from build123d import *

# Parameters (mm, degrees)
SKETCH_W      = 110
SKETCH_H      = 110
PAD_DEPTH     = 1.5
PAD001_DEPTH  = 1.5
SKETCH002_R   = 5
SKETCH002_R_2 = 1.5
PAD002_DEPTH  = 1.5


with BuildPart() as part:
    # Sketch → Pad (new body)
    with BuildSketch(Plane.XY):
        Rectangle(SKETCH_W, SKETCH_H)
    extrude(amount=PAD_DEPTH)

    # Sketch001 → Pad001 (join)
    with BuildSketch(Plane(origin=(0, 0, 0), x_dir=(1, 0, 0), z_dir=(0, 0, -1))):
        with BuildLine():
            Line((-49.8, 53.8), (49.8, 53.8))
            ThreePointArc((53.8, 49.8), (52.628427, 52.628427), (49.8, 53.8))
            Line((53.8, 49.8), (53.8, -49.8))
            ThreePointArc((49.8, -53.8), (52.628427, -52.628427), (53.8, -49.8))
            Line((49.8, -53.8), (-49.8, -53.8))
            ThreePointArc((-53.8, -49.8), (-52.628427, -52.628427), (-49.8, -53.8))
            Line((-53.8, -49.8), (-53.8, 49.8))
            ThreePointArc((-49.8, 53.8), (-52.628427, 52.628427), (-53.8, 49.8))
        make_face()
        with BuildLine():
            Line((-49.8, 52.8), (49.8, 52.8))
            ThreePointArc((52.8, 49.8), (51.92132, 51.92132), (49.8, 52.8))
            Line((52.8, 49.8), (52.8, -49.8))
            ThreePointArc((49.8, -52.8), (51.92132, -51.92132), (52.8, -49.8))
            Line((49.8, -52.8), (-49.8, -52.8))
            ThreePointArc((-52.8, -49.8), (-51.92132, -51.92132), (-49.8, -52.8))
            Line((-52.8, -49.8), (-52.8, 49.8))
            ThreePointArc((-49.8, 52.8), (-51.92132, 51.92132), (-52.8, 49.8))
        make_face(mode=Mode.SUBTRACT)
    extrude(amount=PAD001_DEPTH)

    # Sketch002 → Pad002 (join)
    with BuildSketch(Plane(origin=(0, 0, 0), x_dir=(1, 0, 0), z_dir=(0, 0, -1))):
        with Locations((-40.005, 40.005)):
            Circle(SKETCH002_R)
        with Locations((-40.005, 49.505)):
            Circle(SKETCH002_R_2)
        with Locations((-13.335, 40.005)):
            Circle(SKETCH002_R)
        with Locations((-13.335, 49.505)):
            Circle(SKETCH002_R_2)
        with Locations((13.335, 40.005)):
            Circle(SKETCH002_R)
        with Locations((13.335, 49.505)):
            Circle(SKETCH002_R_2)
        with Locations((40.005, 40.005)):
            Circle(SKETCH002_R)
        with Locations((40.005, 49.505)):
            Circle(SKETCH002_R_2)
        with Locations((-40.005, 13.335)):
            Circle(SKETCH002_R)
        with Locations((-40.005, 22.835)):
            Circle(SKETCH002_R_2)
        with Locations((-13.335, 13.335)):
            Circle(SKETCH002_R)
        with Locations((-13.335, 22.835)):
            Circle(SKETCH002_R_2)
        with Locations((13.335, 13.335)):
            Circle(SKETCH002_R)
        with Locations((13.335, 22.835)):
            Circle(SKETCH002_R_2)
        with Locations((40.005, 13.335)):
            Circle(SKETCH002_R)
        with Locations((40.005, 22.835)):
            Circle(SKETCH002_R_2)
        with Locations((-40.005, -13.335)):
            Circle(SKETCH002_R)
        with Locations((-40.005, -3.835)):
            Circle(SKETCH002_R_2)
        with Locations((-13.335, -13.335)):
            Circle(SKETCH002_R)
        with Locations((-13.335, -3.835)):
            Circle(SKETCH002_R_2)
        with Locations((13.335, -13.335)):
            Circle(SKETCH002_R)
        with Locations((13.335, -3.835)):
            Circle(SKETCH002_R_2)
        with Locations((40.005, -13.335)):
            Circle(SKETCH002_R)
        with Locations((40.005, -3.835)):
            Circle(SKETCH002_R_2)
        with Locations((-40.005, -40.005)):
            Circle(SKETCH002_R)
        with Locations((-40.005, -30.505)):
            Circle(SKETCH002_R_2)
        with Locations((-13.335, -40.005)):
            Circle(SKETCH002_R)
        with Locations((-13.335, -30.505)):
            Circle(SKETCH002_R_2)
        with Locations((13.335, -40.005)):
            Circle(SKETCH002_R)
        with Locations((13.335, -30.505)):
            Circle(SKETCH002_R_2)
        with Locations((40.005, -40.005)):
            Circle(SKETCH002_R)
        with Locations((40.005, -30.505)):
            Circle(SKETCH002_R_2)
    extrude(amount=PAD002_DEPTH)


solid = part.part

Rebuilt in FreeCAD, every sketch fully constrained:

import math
import FreeCAD as App
import Part
import Sketcher

V = App.Vector


def add_polygon(sketch, points):
    """Adds a closed chain of lines whose ends are joined by coincident constraints."""
    first, n = sketch.GeometryCount, len(points)
    for a, b in zip(points, points[1:] + points[:1]):
        sketch.addGeometry(Part.LineSegment(App.Vector(*a, 0), App.Vector(*b, 0)), False)
    for i in range(n):
        sketch.addConstraint(Sketcher.Constraint("Coincident", first + i, 2, first + (i + 1) % n, 1))

doc = App.newDocument("Part")
body = doc.addObject("PartDesign::Body", "Body")

# Sketch on XY plane
sketch1 = body.newObject("Sketcher::SketchObject", "Sketch")
sketch1.AttachmentSupport = (doc.getObject("XY_Plane"), [""])
sketch1.MapMode = "FlatFace"
add_polygon(sketch1, [(-55, 55), (-55, -55), (55, -55), (55, 55)])  # lines 0-3
sketch1.addConstraint([
    Sketcher.Constraint("Vertical", 0),
    Sketcher.Constraint("Horizontal", 1),
    Sketcher.Constraint("Vertical", 2),
    Sketcher.Constraint("Horizontal", 3),
    Sketcher.Constraint("Symmetric", 0, 2, 2, 2, -1, 1),
    Sketcher.Constraint("Equal", 3, 0),
    Sketcher.Constraint("DistanceX", 1, 1, 1, 2, 110.0),
])
pad1 = body.newObject("PartDesign::Pad", "Pad")
pad1.Profile = sketch1
pad1.Length = 1.5

# Sketch on XY plane
sketch2 = body.newObject("Sketcher::SketchObject", "Sketch001")
sketch2.AttachmentSupport = (doc.getObject("XY_Plane"), [""])
sketch2.MapMode = "FlatFace"
sketch2.addGeometry([
    Part.LineSegment(V(49.8, -53.8, 0), V(-49.8, -53.8, 0)),  # 0
    Part.ArcOfCircle(Part.Circle(V(-49.8, -49.8, 0), V(0, 0, 1), 4), math.radians(-179.999994), math.radians(-90.000006)),  # 1
    Part.LineSegment(V(-53.8, -49.8, 0), V(-53.8, 49.8, 0)),  # 2
    Part.ArcOfCircle(Part.Circle(V(-49.8, 49.8, 0), V(0, 0, 1), 4), math.radians(90.000006), math.radians(179.999994)),  # 3
    Part.LineSegment(V(-49.8, 53.8, 0), V(49.8, 53.8, 0)),  # 4
    Part.ArcOfCircle(Part.Circle(V(49.8, 49.8, 0), V(0, 0, 1), 4), math.radians(0.000006), math.radians(89.999994)),  # 5
    Part.LineSegment(V(53.8, 49.8, 0), V(53.8, -49.8, 0)),  # 6
    Part.ArcOfCircle(Part.Circle(V(49.8, -49.8, 0), V(0, 0, 1), 4), math.radians(-89.999994), math.radians(-0.000006)),  # 7
    Part.LineSegment(V(-49.8, -52.8, 0), V(49.8, -52.8, 0)),  # 8
    Part.ArcOfCircle(Part.Circle(V(49.799999, -49.799999, 0), V(0, 0, 1), 3.000001), math.radians(-89.999978), math.radians(-0.000022)),  # 9
    Part.LineSegment(V(52.8, -49.8, 0), V(52.8, 49.8, 0)),  # 10
    Part.ArcOfCircle(Part.Circle(V(49.799999, 49.799999, 0), V(0, 0, 1), 3.000001), math.radians(0.000022), math.radians(89.999978)),  # 11
    Part.LineSegment(V(49.8, 52.8, 0), V(-49.8, 52.8, 0)),  # 12
    Part.ArcOfCircle(Part.Circle(V(-49.799999, 49.799999, 0), V(0, 0, 1), 3.000001), math.radians(90.000022), math.radians(179.999978)),  # 13
    Part.LineSegment(V(-52.8, 49.8, 0), V(-52.8, -49.8, 0)),  # 14
    Part.ArcOfCircle(Part.Circle(V(-49.799999, -49.799999, 0), V(0, 0, 1), 3.000001), math.radians(-179.999978), math.radians(-90.000022)),  # 15
], False)
sketch2.addConstraint([
    Sketcher.Constraint("Tangent", 0, 2, 1, 2),
    Sketcher.Constraint("Tangent", 1, 1, 2, 1),
    Sketcher.Constraint("Tangent", 2, 2, 3, 2),
    Sketcher.Constraint("Tangent", 3, 1, 4, 1),
    Sketcher.Constraint("Tangent", 4, 2, 5, 2),
    Sketcher.Constraint("Tangent", 5, 1, 6, 1),
    Sketcher.Constraint("Tangent", 6, 2, 7, 2),
    Sketcher.Constraint("Tangent", 7, 1, 0, 1),
    Sketcher.Constraint("Tangent", 8, 2, 9, 1),
    Sketcher.Constraint("Tangent", 9, 2, 10, 1),
    Sketcher.Constraint("Tangent", 10, 2, 11, 1),
    Sketcher.Constraint("Tangent", 11, 2, 12, 1),
    Sketcher.Constraint("Tangent", 12, 2, 13, 1),
    Sketcher.Constraint("Tangent", 13, 2, 14, 1),
    Sketcher.Constraint("Tangent", 14, 2, 15, 1),
    Sketcher.Constraint("Tangent", 15, 2, 8, 1),
    Sketcher.Constraint("Horizontal", 0),
    Sketcher.Constraint("Vertical", 2),
    Sketcher.Constraint("Horizontal", 4),
    Sketcher.Constraint("Vertical", 6),
    Sketcher.Constraint("Horizontal", 8),
    Sketcher.Constraint("Vertical", 10),
    Sketcher.Constraint("Horizontal", 12),
    Sketcher.Constraint("Vertical", 14),
    Sketcher.Constraint("Coincident", 9, 3, 7, 3),
    Sketcher.Constraint("Coincident", 11, 3, 5, 3),
    Sketcher.Constraint("Coincident", 13, 3, 3, 3),
    Sketcher.Constraint("Equal", 1, 3),
    Sketcher.Constraint("Equal", 3, 5),
    Sketcher.Constraint("Equal", 5, 7),
    Sketcher.Constraint("Equal", 13, 15),
    Sketcher.Constraint("Symmetric", 1, 3, 5, 3, -1, 1),
    Sketcher.Constraint("Equal", 12, 2),
    Sketcher.Constraint("Radius", 1, 4.0),
    Sketcher.Constraint("Radius", 9, 3.000001),
    Sketcher.Constraint("DistanceX", 0, 2, 0, 1, 99.6),
])
pad2 = body.newObject("PartDesign::Pad", "Pad001")
pad2.Profile = sketch2
pad2.Length = 1.5
pad2.Reversed = True

# Sketch on XY plane
sketch3 = body.newObject("Sketcher::SketchObject", "Sketch002")
sketch3.AttachmentSupport = (doc.getObject("XY_Plane"), [""])
sketch3.MapMode = "FlatFace"
sketch3.addGeometry([
    Part.Circle(V(-40.005, -40.005, 0), V(0, 0, 1), 5),  # 0
    Part.Circle(V(-40.005, -49.505, 0), V(0, 0, 1), 1.5),  # 1
    Part.Circle(V(-13.335, -40.005, 0), V(0, 0, 1), 5),  # 2
    Part.Circle(V(-13.335, -49.505, 0), V(0, 0, 1), 1.5),  # 3
    Part.Circle(V(13.335, -40.005, 0), V(0, 0, 1), 5),  # 4
    Part.Circle(V(13.335, -49.505, 0), V(0, 0, 1), 1.5),  # 5
    Part.Circle(V(40.005, -40.005, 0), V(0, 0, 1), 5),  # 6
    Part.Circle(V(40.005, -49.505, 0), V(0, 0, 1), 1.5),  # 7
    Part.Circle(V(-40.005, -13.335, 0), V(0, 0, 1), 5),  # 8
    Part.Circle(V(-40.005, -22.835, 0), V(0, 0, 1), 1.5),  # 9
    Part.Circle(V(-13.335, -13.335, 0), V(0, 0, 1), 5),  # 10
    Part.Circle(V(-13.335, -22.835, 0), V(0, 0, 1), 1.5),  # 11
    Part.Circle(V(13.335, -13.335, 0), V(0, 0, 1), 5),  # 12
    Part.Circle(V(13.335, -22.835, 0), V(0, 0, 1), 1.5),  # 13
    Part.Circle(V(40.005, -13.335, 0), V(0, 0, 1), 5),  # 14
    Part.Circle(V(40.005, -22.835, 0), V(0, 0, 1), 1.5),  # 15
    Part.Circle(V(-40.005, 13.335, 0), V(0, 0, 1), 5),  # 16
    Part.Circle(V(-40.005, 3.835, 0), V(0, 0, 1), 1.5),  # 17
    Part.Circle(V(-13.335, 13.335, 0), V(0, 0, 1), 5),  # 18
    Part.Circle(V(-13.335, 3.835, 0), V(0, 0, 1), 1.5),  # 19
    Part.Circle(V(13.335, 13.335, 0), V(0, 0, 1), 5),  # 20
    Part.Circle(V(13.335, 3.835, 0), V(0, 0, 1), 1.5),  # 21
    Part.Circle(V(40.005, 13.335, 0), V(0, 0, 1), 5),  # 22
    Part.Circle(V(40.005, 3.835, 0), V(0, 0, 1), 1.5),  # 23
    Part.Circle(V(-40.005, 40.005, 0), V(0, 0, 1), 5),  # 24
    Part.Circle(V(-40.005, 30.505, 0), V(0, 0, 1), 1.5),  # 25
    Part.Circle(V(-13.335, 40.005, 0), V(0, 0, 1), 5),  # 26
    Part.Circle(V(-13.335, 30.505, 0), V(0, 0, 1), 1.5),  # 27
    Part.Circle(V(13.335, 40.005, 0), V(0, 0, 1), 5),  # 28
    Part.Circle(V(13.335, 30.505, 0), V(0, 0, 1), 1.5),  # 29
    Part.Circle(V(40.005, 40.005, 0), V(0, 0, 1), 5),  # 30
    Part.Circle(V(40.005, 30.505, 0), V(0, 0, 1), 1.5),  # 31
], False)
sketch3.addConstraint([
    Sketcher.Constraint("Equal", 0, 2),
    Sketcher.Constraint("Equal", 1, 3),
    Sketcher.Constraint("Equal", 2, 4),
    Sketcher.Constraint("Equal", 3, 5),
    Sketcher.Constraint("Equal", 4, 6),
    Sketcher.Constraint("Equal", 5, 7),
    Sketcher.Constraint("Equal", 6, 8),
    Sketcher.Constraint("Equal", 7, 9),
    Sketcher.Constraint("Equal", 8, 10),
    Sketcher.Constraint("Equal", 9, 11),
    Sketcher.Constraint("Equal", 10, 12),
    Sketcher.Constraint("Equal", 11, 13),
    Sketcher.Constraint("Equal", 12, 14),
    Sketcher.Constraint("Equal", 13, 15),
    Sketcher.Constraint("Equal", 14, 16),
    Sketcher.Constraint("Equal", 15, 17),
    Sketcher.Constraint("Equal", 16, 18),
    Sketcher.Constraint("Equal", 17, 19),
    Sketcher.Constraint("Equal", 18, 20),
    Sketcher.Constraint("Equal", 19, 21),
    Sketcher.Constraint("Equal", 20, 22),
    Sketcher.Constraint("Equal", 21, 23),
    Sketcher.Constraint("Equal", 22, 24),
    Sketcher.Constraint("Equal", 23, 25),
    Sketcher.Constraint("Equal", 24, 26),
    Sketcher.Constraint("Equal", 25, 27),
    Sketcher.Constraint("Equal", 26, 28),
    Sketcher.Constraint("Equal", 27, 29),
    Sketcher.Constraint("Equal", 28, 30),
    Sketcher.Constraint("Equal", 29, 31),
    Sketcher.Constraint("Symmetric", 14, 3, 16, 3, -1, 1),
    Sketcher.Constraint("Symmetric", 12, 3, 18, 3, -1, 1),
    Sketcher.Constraint("Symmetric", 10, 3, 20, 3, -1, 1),
    Sketcher.Constraint("Symmetric", 8, 3, 22, 3, -1, 1),
    Sketcher.Constraint("Symmetric", 6, 3, 24, 3, -1, 1),
    Sketcher.Constraint("Symmetric", 4, 3, 26, 3, -1, 1),
    Sketcher.Constraint("Symmetric", 2, 3, 28, 3, -1, 1),
    Sketcher.Constraint("Symmetric", 0, 3, 30, 3, -1, 1),
    Sketcher.Constraint("Symmetric", 2, 3, 4, 3, -2),
    Sketcher.Constraint("Symmetric", 3, 3, 5, 3, -2),
    Sketcher.Constraint("Symmetric", 0, 3, 6, 3, -2),
    Sketcher.Constraint("Symmetric", 1, 3, 7, 3, -2),
    Sketcher.Constraint("Symmetric", 10, 3, 12, 3, -2),
    Sketcher.Constraint("Symmetric", 11, 3, 13, 3, -2),
    Sketcher.Constraint("Symmetric", 8, 3, 14, 3, -2),
    Sketcher.Constraint("Symmetric", 9, 3, 15, 3, -2),
    Sketcher.Constraint("Symmetric", 19, 3, 21, 3, -2),
    Sketcher.Constraint("Symmetric", 17, 3, 23, 3, -2),
    Sketcher.Constraint("Symmetric", 27, 3, 29, 3, -2),
    Sketcher.Constraint("Symmetric", 25, 3, 31, 3, -2),
    Sketcher.Constraint("Horizontal", 0, 3, 2, 3),
    Sketcher.Constraint("Horizontal", 1, 3, 3, 3),
    Sketcher.Constraint("Horizontal", 8, 3, 10, 3),
    Sketcher.Constraint("Horizontal", 9, 3, 11, 3),
    Sketcher.Constraint("Horizontal", 17, 3, 19, 3),
    Sketcher.Constraint("Horizontal", 25, 3, 27, 3),
    Sketcher.Constraint("Vertical", 0, 3, 1, 3),
    Sketcher.Constraint("Vertical", 2, 3, 3, 3),
    Sketcher.Constraint("Vertical", 1, 3, 8, 3),
    Sketcher.Constraint("Vertical", 8, 3, 9, 3),
    Sketcher.Constraint("Vertical", 3, 3, 10, 3),
    Sketcher.Constraint("Vertical", 10, 3, 11, 3),
    Sketcher.Constraint("Vertical", 16, 3, 17, 3),
    Sketcher.Constraint("Vertical", 18, 3, 19, 3),
    Sketcher.Constraint("Vertical", 24, 3, 25, 3),
    Sketcher.Constraint("Vertical", 26, 3, 27, 3),
    Sketcher.Constraint("Diameter", 0, 10.0),
    Sketcher.Constraint("Diameter", 1, 3.0),
    Sketcher.Constraint("DistanceY", 1, 3, 0, 3, 9.5),
    Sketcher.Constraint("DistanceY", 9, 3, 8, 3, 9.5),
    Sketcher.Constraint("DistanceY", 17, 3, 16, 3, 9.5),
    Sketcher.Constraint("DistanceY", 25, 3, 24, 3, 9.5),
    Sketcher.Constraint("DistanceX", 0, 3, 2, 3, 26.67),
    Sketcher.Constraint("DistanceX", 2, 3, 4, 3, 26.67),
    Sketcher.Constraint("DistanceY", 0, 3, 8, 3, 26.67),
    Sketcher.Constraint("DistanceY", 8, 3, 16, 3, 26.67),
])
pad3 = body.newObject("PartDesign::Pad", "Pad002")
pad3.Profile = sketch3
pad3.Length = 1.5
pad3.Reversed = True

doc.recompute()
